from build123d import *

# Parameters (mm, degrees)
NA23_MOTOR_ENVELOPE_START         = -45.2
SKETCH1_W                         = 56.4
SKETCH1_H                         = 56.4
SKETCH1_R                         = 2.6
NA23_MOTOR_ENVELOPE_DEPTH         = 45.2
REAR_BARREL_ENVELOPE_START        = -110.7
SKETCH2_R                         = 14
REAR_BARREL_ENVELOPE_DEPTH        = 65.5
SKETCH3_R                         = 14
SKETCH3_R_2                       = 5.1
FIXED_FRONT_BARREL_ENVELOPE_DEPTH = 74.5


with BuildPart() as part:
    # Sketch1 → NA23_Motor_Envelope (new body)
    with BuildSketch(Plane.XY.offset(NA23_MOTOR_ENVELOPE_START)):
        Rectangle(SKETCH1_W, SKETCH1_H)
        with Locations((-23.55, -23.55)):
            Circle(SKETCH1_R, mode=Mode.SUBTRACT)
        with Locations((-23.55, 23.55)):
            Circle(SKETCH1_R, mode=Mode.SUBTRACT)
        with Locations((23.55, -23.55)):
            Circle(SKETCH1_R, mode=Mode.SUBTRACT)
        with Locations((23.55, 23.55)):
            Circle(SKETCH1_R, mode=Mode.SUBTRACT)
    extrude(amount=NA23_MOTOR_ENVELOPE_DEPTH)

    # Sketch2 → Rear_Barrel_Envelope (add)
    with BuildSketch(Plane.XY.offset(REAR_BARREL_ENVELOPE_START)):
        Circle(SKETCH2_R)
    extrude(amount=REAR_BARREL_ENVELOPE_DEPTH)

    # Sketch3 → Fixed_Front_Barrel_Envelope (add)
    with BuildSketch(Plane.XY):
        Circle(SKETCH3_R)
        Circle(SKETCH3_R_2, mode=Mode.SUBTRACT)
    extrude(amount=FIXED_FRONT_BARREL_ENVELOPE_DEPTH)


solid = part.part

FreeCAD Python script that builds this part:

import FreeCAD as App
import Part
import Sketcher
from FreeCAD import Vector

doc = App.newDocument("Part")
body = doc.addObject("PartDesign::Body", "Body")

# Sketch on XY plane
sketch1 = doc.addObject("Sketcher::SketchObject", "Sketch")
body.addObject(sketch1)
sketch1.AttachmentSupport = (doc.XY_Plane, [""])
sketch1.MapMode = "FlatFace"
sketch1.AttachmentOffset = App.Placement(Vector(0, 0, -45.2), App.Rotation())
sketch1.addGeometry(Part.LineSegment(Vector(-28.2, 28.2, 0), Vector(-28.2, -28.2, 0)), False)
sketch1.addGeometry(Part.LineSegment(Vector(-28.2, -28.2, 0), Vector(28.2, -28.2, 0)), False)
sketch1.addGeometry(Part.LineSegment(Vector(28.2, -28.2, 0), Vector(28.2, 28.2, 0)), False)
sketch1.addGeometry(Part.LineSegment(Vector(28.2, 28.2, 0), Vector(-28.2, 28.2, 0)), False)
sketch1.addGeometry(Part.Circle(Vector(-23.6, -23.6, 0), Vector(0, 0, 1), 2.6), False)
sketch1.addGeometry(Part.Circle(Vector(23.6, -23.6, 0), Vector(0, 0, 1), 2.6), False)
sketch1.addGeometry(Part.Circle(Vector(-23.6, 23.6, 0), Vector(0, 0, 1), 2.6), False)
sketch1.addGeometry(Part.Circle(Vector(23.6, 23.6, 0), Vector(0, 0, 1), 2.6), False)
sketch1.addConstraint(Sketcher.Constraint("Coincident", 0, 2, 1, 1))
sketch1.addConstraint(Sketcher.Constraint("Coincident", 1, 2, 2, 1))
sketch1.addConstraint(Sketcher.Constraint("Coincident", 2, 2, 3, 1))
sketch1.addConstraint(Sketcher.Constraint("Coincident", 3, 2, 0, 1))
sketch1.addConstraint(Sketcher.Constraint("Vertical", 0))
sketch1.addConstraint(Sketcher.Constraint("Horizontal", 1))
sketch1.addConstraint(Sketcher.Constraint("Vertical", 2))
sketch1.addConstraint(Sketcher.Constraint("Horizontal", 3))
sketch1.addConstraint(Sketcher.Constraint("Equal", 4, 5))
sketch1.addConstraint(Sketcher.Constraint("Equal", 5, 6))
sketch1.addConstraint(Sketcher.Constraint("Equal", 6, 7))
sketch1.addConstraint(Sketcher.Constraint("Symmetric", 5, 3, 6, 3, -1, 1))
sketch1.addConstraint(Sketcher.Constraint("Symmetric", 4, 3, 7, 3, -1, 1))
sketch1.addConstraint(Sketcher.Constraint("Symmetric", 0, 2, 2, 2, -1, 1))
sketch1.addConstraint(Sketcher.Constraint("Symmetric", 4, 3, 5, 3, -2))
sketch1.addConstraint(Sketcher.Constraint("Equal", 3, 0))
sketch1.addConstraint(Sketcher.Constraint("Diameter", 4, 5.2))
sketch1.addConstraint(Sketcher.Constraint("DistanceX", 1, 1, 1, 2, 56.4))
sketch1.addConstraint(Sketcher.Constraint("DistanceX", 4, 3, 5, 3, 47.1))
sketch1.addConstraint(Sketcher.Constraint("DistanceY", 4, 3, 6, 3, 47.1))
pad1 = doc.addObject("PartDesign::Pad", "Pad")
body.addObject(pad1)
pad1.Profile = sketch1
pad1.Length = 45.2

# Sketch on XY plane
sketch2 = doc.addObject("Sketcher::SketchObject", "Sketch001")
body.addObject(sketch2)
sketch2.AttachmentSupport = (doc.XY_Plane, [""])
sketch2.MapMode = "FlatFace"
sketch2.AttachmentOffset = App.Placement(Vector(0, 0, -110.7), App.Rotation())
sketch2.addGeometry(Part.Circle(Vector(0, 0, 0), Vector(0, 0, 1), 14), False)
sketch2.addConstraint(Sketcher.Constraint("Coincident", 0, 3, -1, 1))
sketch2.addConstraint(Sketcher.Constraint("Diameter", 0, 28.0))
pad2 = doc.addObject("PartDesign::Pad", "Pad001")
body.addObject(pad2)
pad2.Profile = sketch2
pad2.Length = 65.5

# Sketch on XY plane
sketch3 = doc.addObject("Sketcher::SketchObject", "Sketch002")
body.addObject(sketch3)
sketch3.AttachmentSupport = (doc.XY_Plane, [""])
sketch3.MapMode = "FlatFace"
sketch3.addGeometry(Part.Circle(Vector(0, 0, 0), Vector(0, 0, 1), 14), False)
sketch3.addGeometry(Part.Circle(Vector(0, 0, 0), Vector(0, 0, 1), 5), False)
sketch3.addConstraint(Sketcher.Constraint("Coincident", 0, 3, -1, 1))
sketch3.addConstraint(Sketcher.Constraint("Coincident", 1, 3, -1, 1))
sketch3.addConstraint(Sketcher.Constraint("Diameter", 0, 28.0))
sketch3.addConstraint(Sketcher.Constraint("Diameter", 1, 10.2))
pad3 = doc.addObject("PartDesign::Pad", "Pad002")
body.addObject(pad3)
pad3.Profile = sketch3
pad3.Length = 74.5

doc.recompute()
